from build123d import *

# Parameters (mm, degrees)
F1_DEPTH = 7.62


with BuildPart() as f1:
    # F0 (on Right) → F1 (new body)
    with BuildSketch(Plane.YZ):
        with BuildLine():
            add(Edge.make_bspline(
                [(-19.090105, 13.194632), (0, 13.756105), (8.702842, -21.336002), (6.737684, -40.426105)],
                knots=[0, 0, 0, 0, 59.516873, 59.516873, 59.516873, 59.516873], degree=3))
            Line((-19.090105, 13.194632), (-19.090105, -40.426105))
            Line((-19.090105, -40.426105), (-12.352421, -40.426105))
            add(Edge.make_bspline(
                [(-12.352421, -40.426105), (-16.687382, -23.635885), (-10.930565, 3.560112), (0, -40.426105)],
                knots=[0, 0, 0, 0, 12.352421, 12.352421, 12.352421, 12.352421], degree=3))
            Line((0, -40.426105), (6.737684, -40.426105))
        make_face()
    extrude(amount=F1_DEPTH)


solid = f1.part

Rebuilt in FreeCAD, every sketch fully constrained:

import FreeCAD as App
import Part
import Sketcher
from FreeCAD import Vector

doc = App.newDocument("Part")
params = doc.addObject("Spreadsheet::Sheet", "Params")
for row, (alias, value) in enumerate([
    ("pad1_length", "0.3 in"),
], start=1):
    params.set(f"A{row}", alias)
    params.set(f"B{row}", "=" + value)
    params.setAlias(f"B{row}", alias)

body = doc.addObject("PartDesign::Body", "Body")

sketch1 = body.newObject("Sketcher::SketchObject", "Sketch")
sketch1.AttachmentSupport = (doc.getObject("YZ_Plane"), [""])
sketch1.MapMode = "FlatFace"
sketch1.addGeometry([
    Part.BSplineCurve([Vector(-19.090105, 13.194632, 0), Vector(0, 13.756105, 0), Vector(8.702842, -21.336002, 0), Vector(6.737684, -40.426105, 0)], [4, 4], [0, 59.516873], False, 3, [1, 1, 1, 1], False),
    Part.LineSegment(Vector(-19.090105, 13.194632, 0), Vector(-19.090105, -40.426105, 0)),
    Part.LineSegment(Vector(-19.090105, -40.426105, 0), Vector(-12.352421, -40.426105, 0)),
    Part.BSplineCurve([Vector(-12.352421, -40.426105, 0), Vector(-16.687382, -23.635885, 0), Vector(-10.930565, 3.560112, 0), Vector(0, -40.426105, 0)], [4, 4], [0, 12.352421], False, 3, [1, 1, 1, 1], False),
    Part.LineSegment(Vector(0, -40.426105, 0), Vector(6.737684, -40.426105, 0)),
], False)
sketch1.addConstraint([
    Sketcher.Constraint("Block", 0),
    Sketcher.Constraint("Block", 3),
    Sketcher.Constraint("Coincident", 0, 1, 1, 1),
    Sketcher.Constraint("Coincident", 1, 2, 2, 1),
    Sketcher.Constraint("Coincident", 2, 2, 3, 1),
    Sketcher.Constraint("Coincident", 3, 2, 4, 1),
    Sketcher.Constraint("Coincident", 4, 2, 0, 2),
    Sketcher.Constraint("Vertical", 1),
    Sketcher.Constraint("Horizontal", 2),
])
pad1 = body.newObject("PartDesign::Pad", "Pad")
pad1.Profile = sketch1
pad1.setExpression("Length", "Params.pad1_length")

doc.recompute()
